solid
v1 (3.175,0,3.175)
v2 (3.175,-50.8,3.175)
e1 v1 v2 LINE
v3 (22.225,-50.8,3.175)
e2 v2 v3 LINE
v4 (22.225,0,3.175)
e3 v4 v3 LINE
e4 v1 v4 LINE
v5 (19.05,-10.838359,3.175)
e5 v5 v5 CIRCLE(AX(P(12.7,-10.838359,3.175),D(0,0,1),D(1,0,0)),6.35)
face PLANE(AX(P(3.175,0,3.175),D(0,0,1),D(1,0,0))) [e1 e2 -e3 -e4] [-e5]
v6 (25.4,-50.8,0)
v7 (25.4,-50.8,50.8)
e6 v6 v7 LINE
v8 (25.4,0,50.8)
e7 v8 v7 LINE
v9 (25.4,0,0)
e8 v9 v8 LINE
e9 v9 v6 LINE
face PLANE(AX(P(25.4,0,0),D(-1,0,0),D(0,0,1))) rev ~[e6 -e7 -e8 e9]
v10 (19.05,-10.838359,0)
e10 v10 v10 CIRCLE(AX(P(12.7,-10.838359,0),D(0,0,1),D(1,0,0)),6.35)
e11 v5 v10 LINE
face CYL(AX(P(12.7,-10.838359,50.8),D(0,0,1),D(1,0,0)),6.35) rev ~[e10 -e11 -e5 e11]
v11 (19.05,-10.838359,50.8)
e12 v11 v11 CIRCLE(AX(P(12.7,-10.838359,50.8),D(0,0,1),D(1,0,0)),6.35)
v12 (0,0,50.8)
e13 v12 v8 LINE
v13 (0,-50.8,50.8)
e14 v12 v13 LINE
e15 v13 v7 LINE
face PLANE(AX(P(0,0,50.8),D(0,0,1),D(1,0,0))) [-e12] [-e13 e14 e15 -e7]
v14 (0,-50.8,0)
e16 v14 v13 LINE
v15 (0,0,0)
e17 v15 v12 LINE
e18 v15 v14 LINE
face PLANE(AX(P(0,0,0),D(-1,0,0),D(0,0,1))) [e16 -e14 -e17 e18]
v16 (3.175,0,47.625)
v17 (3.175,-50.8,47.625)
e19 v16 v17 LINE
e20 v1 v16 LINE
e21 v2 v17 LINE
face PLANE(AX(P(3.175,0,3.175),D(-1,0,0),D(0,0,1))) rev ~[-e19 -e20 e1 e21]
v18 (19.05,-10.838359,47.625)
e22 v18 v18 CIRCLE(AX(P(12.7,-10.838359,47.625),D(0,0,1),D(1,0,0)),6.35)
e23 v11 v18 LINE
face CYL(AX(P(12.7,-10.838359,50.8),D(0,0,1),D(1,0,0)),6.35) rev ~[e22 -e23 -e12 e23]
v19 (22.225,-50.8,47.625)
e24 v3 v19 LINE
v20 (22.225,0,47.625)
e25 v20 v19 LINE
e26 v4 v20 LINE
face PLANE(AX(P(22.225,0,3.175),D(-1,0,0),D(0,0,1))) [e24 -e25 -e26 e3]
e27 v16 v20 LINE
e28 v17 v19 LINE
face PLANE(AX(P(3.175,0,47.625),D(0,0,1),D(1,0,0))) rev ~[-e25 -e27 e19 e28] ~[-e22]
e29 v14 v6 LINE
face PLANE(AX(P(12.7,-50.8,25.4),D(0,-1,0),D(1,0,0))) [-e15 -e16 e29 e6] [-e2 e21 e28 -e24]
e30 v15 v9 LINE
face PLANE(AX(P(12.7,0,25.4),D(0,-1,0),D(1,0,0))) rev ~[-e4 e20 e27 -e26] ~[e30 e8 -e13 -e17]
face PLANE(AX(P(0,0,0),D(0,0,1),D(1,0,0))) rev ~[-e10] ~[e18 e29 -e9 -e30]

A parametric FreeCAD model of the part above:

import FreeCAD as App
import Part
import Sketcher
from FreeCAD import Vector
Q = App.Units.Quantity


def add_polygon(sketch, points):
    """Adds a closed chain of lines whose ends are joined by coincident constraints."""
    first, n = sketch.GeometryCount, len(points)
    for a, b in zip(points, points[1:] + points[:1]):
        sketch.addGeometry(Part.LineSegment(App.Vector(*a, 0), App.Vector(*b, 0)), False)
    for i in range(n):
        sketch.addConstraint(Sketcher.Constraint("Coincident", first + i, 2, first + (i + 1) % n, 1))

doc = App.newDocument("Part")
params = doc.addObject("Spreadsheet::Sheet", "Params")
for row, (alias, value) in enumerate([
    ("sketch1_width", "1 in"),
    ("sketch1_height", "2 in"),
    ("sketch1_width2", "0.75 in"),
    ("sketch1_height2", "1.75 in"),
    ("pad1_length", "2 in"),
    ("sketch2_diameter", "0.5 in"),
    ("pocket1_length", "2 in"),
], start=1):
    params.set(f"A{row}", alias)
    params.set(f"B{row}", "=" + value)
    params.setAlias(f"B{row}", alias)

body = doc.addObject("PartDesign::Body", "Body")

sketch1 = doc.addObject("Sketcher::SketchObject", "Sketch")
body.addObject(sketch1)
sketch1.AttachmentSupport = (doc.XZ_Plane, [""])
sketch1.MapMode = "FlatFace"
add_polygon(sketch1, [(0, 51), (0, 0), (25, 0), (25, 51)])
add_polygon(sketch1, [(22, 3), (3, 3), (3, 48), (22, 48)])
sketch1.addConstraint([
    Sketcher.Constraint("Vertical", 0),
    Sketcher.Constraint("Horizontal", 1),
    Sketcher.Constraint("Vertical", 2),
    Sketcher.Constraint("Horizontal", 3),
    Sketcher.Constraint("Horizontal", 4),
    Sketcher.Constraint("Vertical", 5),
    Sketcher.Constraint("Horizontal", 6),
    Sketcher.Constraint("Vertical", 7),
    Sketcher.Constraint("Coincident", 0, 2, -1, 1),
    Sketcher.Constraint("DistanceX", 1, 1, 1, 2, Q("1 in")),
    Sketcher.Constraint("DistanceY", 0, 2, 0, 1, Q("2 in")),
    Sketcher.Constraint("DistanceX", 4, 2, 4, 1, Q("0.75 in")),
    Sketcher.Constraint("DistanceY", 5, 1, 5, 2, Q("1.75 in")),
    Sketcher.Constraint("DistanceX", -1, 1, 4, 2, Q("0.125 in")),
    Sketcher.Constraint("DistanceY", -1, 1, 4, 2, Q("0.125 in")),
])
sketch1.setExpression("Constraints[17]", "Params.sketch1_width")
sketch1.setExpression("Constraints[18]", "Params.sketch1_height")
sketch1.setExpression("Constraints[19]", "Params.sketch1_width2")
sketch1.setExpression("Constraints[20]", "Params.sketch1_height2")
pad1 = doc.addObject("PartDesign::Pad", "Pad")
body.addObject(pad1)
pad1.Profile = sketch1
pad1.setExpression("Length", "Params.pad1_length")

sketch2 = doc.addObject("Sketcher::SketchObject", "Sketch001")
body.addObject(sketch2)
sketch2.AttachmentSupport = (doc.XY_Plane, [""])
sketch2.MapMode = "FlatFace"
sketch2.AttachmentOffset = App.Placement(Vector(0, 0, 2 * 25.4), App.Rotation())
sketch2.addGeometry(Part.Circle(Vector(13, -11, 0), Vector(0, 0, 1), 6), False)
sketch2.addConstraint([
    Sketcher.Constraint("Diameter", 0, Q("0.5 in")),
    Sketcher.Constraint("DistanceX", -1, 1, 0, 3, Q("0.5 in")),
    Sketcher.Constraint("DistanceY", 0, 3, -1, 1, Q("10.838359 mm")),
])
sketch2.setExpression("Constraints[0]", "Params.sketch2_diameter")
pocket1 = doc.addObject("PartDesign::Pocket", "Pocket")
body.addObject(pocket1)
pocket1.Profile = sketch2
pocket1.setExpression("Length", "Params.pocket1_length")

doc.recompute()
